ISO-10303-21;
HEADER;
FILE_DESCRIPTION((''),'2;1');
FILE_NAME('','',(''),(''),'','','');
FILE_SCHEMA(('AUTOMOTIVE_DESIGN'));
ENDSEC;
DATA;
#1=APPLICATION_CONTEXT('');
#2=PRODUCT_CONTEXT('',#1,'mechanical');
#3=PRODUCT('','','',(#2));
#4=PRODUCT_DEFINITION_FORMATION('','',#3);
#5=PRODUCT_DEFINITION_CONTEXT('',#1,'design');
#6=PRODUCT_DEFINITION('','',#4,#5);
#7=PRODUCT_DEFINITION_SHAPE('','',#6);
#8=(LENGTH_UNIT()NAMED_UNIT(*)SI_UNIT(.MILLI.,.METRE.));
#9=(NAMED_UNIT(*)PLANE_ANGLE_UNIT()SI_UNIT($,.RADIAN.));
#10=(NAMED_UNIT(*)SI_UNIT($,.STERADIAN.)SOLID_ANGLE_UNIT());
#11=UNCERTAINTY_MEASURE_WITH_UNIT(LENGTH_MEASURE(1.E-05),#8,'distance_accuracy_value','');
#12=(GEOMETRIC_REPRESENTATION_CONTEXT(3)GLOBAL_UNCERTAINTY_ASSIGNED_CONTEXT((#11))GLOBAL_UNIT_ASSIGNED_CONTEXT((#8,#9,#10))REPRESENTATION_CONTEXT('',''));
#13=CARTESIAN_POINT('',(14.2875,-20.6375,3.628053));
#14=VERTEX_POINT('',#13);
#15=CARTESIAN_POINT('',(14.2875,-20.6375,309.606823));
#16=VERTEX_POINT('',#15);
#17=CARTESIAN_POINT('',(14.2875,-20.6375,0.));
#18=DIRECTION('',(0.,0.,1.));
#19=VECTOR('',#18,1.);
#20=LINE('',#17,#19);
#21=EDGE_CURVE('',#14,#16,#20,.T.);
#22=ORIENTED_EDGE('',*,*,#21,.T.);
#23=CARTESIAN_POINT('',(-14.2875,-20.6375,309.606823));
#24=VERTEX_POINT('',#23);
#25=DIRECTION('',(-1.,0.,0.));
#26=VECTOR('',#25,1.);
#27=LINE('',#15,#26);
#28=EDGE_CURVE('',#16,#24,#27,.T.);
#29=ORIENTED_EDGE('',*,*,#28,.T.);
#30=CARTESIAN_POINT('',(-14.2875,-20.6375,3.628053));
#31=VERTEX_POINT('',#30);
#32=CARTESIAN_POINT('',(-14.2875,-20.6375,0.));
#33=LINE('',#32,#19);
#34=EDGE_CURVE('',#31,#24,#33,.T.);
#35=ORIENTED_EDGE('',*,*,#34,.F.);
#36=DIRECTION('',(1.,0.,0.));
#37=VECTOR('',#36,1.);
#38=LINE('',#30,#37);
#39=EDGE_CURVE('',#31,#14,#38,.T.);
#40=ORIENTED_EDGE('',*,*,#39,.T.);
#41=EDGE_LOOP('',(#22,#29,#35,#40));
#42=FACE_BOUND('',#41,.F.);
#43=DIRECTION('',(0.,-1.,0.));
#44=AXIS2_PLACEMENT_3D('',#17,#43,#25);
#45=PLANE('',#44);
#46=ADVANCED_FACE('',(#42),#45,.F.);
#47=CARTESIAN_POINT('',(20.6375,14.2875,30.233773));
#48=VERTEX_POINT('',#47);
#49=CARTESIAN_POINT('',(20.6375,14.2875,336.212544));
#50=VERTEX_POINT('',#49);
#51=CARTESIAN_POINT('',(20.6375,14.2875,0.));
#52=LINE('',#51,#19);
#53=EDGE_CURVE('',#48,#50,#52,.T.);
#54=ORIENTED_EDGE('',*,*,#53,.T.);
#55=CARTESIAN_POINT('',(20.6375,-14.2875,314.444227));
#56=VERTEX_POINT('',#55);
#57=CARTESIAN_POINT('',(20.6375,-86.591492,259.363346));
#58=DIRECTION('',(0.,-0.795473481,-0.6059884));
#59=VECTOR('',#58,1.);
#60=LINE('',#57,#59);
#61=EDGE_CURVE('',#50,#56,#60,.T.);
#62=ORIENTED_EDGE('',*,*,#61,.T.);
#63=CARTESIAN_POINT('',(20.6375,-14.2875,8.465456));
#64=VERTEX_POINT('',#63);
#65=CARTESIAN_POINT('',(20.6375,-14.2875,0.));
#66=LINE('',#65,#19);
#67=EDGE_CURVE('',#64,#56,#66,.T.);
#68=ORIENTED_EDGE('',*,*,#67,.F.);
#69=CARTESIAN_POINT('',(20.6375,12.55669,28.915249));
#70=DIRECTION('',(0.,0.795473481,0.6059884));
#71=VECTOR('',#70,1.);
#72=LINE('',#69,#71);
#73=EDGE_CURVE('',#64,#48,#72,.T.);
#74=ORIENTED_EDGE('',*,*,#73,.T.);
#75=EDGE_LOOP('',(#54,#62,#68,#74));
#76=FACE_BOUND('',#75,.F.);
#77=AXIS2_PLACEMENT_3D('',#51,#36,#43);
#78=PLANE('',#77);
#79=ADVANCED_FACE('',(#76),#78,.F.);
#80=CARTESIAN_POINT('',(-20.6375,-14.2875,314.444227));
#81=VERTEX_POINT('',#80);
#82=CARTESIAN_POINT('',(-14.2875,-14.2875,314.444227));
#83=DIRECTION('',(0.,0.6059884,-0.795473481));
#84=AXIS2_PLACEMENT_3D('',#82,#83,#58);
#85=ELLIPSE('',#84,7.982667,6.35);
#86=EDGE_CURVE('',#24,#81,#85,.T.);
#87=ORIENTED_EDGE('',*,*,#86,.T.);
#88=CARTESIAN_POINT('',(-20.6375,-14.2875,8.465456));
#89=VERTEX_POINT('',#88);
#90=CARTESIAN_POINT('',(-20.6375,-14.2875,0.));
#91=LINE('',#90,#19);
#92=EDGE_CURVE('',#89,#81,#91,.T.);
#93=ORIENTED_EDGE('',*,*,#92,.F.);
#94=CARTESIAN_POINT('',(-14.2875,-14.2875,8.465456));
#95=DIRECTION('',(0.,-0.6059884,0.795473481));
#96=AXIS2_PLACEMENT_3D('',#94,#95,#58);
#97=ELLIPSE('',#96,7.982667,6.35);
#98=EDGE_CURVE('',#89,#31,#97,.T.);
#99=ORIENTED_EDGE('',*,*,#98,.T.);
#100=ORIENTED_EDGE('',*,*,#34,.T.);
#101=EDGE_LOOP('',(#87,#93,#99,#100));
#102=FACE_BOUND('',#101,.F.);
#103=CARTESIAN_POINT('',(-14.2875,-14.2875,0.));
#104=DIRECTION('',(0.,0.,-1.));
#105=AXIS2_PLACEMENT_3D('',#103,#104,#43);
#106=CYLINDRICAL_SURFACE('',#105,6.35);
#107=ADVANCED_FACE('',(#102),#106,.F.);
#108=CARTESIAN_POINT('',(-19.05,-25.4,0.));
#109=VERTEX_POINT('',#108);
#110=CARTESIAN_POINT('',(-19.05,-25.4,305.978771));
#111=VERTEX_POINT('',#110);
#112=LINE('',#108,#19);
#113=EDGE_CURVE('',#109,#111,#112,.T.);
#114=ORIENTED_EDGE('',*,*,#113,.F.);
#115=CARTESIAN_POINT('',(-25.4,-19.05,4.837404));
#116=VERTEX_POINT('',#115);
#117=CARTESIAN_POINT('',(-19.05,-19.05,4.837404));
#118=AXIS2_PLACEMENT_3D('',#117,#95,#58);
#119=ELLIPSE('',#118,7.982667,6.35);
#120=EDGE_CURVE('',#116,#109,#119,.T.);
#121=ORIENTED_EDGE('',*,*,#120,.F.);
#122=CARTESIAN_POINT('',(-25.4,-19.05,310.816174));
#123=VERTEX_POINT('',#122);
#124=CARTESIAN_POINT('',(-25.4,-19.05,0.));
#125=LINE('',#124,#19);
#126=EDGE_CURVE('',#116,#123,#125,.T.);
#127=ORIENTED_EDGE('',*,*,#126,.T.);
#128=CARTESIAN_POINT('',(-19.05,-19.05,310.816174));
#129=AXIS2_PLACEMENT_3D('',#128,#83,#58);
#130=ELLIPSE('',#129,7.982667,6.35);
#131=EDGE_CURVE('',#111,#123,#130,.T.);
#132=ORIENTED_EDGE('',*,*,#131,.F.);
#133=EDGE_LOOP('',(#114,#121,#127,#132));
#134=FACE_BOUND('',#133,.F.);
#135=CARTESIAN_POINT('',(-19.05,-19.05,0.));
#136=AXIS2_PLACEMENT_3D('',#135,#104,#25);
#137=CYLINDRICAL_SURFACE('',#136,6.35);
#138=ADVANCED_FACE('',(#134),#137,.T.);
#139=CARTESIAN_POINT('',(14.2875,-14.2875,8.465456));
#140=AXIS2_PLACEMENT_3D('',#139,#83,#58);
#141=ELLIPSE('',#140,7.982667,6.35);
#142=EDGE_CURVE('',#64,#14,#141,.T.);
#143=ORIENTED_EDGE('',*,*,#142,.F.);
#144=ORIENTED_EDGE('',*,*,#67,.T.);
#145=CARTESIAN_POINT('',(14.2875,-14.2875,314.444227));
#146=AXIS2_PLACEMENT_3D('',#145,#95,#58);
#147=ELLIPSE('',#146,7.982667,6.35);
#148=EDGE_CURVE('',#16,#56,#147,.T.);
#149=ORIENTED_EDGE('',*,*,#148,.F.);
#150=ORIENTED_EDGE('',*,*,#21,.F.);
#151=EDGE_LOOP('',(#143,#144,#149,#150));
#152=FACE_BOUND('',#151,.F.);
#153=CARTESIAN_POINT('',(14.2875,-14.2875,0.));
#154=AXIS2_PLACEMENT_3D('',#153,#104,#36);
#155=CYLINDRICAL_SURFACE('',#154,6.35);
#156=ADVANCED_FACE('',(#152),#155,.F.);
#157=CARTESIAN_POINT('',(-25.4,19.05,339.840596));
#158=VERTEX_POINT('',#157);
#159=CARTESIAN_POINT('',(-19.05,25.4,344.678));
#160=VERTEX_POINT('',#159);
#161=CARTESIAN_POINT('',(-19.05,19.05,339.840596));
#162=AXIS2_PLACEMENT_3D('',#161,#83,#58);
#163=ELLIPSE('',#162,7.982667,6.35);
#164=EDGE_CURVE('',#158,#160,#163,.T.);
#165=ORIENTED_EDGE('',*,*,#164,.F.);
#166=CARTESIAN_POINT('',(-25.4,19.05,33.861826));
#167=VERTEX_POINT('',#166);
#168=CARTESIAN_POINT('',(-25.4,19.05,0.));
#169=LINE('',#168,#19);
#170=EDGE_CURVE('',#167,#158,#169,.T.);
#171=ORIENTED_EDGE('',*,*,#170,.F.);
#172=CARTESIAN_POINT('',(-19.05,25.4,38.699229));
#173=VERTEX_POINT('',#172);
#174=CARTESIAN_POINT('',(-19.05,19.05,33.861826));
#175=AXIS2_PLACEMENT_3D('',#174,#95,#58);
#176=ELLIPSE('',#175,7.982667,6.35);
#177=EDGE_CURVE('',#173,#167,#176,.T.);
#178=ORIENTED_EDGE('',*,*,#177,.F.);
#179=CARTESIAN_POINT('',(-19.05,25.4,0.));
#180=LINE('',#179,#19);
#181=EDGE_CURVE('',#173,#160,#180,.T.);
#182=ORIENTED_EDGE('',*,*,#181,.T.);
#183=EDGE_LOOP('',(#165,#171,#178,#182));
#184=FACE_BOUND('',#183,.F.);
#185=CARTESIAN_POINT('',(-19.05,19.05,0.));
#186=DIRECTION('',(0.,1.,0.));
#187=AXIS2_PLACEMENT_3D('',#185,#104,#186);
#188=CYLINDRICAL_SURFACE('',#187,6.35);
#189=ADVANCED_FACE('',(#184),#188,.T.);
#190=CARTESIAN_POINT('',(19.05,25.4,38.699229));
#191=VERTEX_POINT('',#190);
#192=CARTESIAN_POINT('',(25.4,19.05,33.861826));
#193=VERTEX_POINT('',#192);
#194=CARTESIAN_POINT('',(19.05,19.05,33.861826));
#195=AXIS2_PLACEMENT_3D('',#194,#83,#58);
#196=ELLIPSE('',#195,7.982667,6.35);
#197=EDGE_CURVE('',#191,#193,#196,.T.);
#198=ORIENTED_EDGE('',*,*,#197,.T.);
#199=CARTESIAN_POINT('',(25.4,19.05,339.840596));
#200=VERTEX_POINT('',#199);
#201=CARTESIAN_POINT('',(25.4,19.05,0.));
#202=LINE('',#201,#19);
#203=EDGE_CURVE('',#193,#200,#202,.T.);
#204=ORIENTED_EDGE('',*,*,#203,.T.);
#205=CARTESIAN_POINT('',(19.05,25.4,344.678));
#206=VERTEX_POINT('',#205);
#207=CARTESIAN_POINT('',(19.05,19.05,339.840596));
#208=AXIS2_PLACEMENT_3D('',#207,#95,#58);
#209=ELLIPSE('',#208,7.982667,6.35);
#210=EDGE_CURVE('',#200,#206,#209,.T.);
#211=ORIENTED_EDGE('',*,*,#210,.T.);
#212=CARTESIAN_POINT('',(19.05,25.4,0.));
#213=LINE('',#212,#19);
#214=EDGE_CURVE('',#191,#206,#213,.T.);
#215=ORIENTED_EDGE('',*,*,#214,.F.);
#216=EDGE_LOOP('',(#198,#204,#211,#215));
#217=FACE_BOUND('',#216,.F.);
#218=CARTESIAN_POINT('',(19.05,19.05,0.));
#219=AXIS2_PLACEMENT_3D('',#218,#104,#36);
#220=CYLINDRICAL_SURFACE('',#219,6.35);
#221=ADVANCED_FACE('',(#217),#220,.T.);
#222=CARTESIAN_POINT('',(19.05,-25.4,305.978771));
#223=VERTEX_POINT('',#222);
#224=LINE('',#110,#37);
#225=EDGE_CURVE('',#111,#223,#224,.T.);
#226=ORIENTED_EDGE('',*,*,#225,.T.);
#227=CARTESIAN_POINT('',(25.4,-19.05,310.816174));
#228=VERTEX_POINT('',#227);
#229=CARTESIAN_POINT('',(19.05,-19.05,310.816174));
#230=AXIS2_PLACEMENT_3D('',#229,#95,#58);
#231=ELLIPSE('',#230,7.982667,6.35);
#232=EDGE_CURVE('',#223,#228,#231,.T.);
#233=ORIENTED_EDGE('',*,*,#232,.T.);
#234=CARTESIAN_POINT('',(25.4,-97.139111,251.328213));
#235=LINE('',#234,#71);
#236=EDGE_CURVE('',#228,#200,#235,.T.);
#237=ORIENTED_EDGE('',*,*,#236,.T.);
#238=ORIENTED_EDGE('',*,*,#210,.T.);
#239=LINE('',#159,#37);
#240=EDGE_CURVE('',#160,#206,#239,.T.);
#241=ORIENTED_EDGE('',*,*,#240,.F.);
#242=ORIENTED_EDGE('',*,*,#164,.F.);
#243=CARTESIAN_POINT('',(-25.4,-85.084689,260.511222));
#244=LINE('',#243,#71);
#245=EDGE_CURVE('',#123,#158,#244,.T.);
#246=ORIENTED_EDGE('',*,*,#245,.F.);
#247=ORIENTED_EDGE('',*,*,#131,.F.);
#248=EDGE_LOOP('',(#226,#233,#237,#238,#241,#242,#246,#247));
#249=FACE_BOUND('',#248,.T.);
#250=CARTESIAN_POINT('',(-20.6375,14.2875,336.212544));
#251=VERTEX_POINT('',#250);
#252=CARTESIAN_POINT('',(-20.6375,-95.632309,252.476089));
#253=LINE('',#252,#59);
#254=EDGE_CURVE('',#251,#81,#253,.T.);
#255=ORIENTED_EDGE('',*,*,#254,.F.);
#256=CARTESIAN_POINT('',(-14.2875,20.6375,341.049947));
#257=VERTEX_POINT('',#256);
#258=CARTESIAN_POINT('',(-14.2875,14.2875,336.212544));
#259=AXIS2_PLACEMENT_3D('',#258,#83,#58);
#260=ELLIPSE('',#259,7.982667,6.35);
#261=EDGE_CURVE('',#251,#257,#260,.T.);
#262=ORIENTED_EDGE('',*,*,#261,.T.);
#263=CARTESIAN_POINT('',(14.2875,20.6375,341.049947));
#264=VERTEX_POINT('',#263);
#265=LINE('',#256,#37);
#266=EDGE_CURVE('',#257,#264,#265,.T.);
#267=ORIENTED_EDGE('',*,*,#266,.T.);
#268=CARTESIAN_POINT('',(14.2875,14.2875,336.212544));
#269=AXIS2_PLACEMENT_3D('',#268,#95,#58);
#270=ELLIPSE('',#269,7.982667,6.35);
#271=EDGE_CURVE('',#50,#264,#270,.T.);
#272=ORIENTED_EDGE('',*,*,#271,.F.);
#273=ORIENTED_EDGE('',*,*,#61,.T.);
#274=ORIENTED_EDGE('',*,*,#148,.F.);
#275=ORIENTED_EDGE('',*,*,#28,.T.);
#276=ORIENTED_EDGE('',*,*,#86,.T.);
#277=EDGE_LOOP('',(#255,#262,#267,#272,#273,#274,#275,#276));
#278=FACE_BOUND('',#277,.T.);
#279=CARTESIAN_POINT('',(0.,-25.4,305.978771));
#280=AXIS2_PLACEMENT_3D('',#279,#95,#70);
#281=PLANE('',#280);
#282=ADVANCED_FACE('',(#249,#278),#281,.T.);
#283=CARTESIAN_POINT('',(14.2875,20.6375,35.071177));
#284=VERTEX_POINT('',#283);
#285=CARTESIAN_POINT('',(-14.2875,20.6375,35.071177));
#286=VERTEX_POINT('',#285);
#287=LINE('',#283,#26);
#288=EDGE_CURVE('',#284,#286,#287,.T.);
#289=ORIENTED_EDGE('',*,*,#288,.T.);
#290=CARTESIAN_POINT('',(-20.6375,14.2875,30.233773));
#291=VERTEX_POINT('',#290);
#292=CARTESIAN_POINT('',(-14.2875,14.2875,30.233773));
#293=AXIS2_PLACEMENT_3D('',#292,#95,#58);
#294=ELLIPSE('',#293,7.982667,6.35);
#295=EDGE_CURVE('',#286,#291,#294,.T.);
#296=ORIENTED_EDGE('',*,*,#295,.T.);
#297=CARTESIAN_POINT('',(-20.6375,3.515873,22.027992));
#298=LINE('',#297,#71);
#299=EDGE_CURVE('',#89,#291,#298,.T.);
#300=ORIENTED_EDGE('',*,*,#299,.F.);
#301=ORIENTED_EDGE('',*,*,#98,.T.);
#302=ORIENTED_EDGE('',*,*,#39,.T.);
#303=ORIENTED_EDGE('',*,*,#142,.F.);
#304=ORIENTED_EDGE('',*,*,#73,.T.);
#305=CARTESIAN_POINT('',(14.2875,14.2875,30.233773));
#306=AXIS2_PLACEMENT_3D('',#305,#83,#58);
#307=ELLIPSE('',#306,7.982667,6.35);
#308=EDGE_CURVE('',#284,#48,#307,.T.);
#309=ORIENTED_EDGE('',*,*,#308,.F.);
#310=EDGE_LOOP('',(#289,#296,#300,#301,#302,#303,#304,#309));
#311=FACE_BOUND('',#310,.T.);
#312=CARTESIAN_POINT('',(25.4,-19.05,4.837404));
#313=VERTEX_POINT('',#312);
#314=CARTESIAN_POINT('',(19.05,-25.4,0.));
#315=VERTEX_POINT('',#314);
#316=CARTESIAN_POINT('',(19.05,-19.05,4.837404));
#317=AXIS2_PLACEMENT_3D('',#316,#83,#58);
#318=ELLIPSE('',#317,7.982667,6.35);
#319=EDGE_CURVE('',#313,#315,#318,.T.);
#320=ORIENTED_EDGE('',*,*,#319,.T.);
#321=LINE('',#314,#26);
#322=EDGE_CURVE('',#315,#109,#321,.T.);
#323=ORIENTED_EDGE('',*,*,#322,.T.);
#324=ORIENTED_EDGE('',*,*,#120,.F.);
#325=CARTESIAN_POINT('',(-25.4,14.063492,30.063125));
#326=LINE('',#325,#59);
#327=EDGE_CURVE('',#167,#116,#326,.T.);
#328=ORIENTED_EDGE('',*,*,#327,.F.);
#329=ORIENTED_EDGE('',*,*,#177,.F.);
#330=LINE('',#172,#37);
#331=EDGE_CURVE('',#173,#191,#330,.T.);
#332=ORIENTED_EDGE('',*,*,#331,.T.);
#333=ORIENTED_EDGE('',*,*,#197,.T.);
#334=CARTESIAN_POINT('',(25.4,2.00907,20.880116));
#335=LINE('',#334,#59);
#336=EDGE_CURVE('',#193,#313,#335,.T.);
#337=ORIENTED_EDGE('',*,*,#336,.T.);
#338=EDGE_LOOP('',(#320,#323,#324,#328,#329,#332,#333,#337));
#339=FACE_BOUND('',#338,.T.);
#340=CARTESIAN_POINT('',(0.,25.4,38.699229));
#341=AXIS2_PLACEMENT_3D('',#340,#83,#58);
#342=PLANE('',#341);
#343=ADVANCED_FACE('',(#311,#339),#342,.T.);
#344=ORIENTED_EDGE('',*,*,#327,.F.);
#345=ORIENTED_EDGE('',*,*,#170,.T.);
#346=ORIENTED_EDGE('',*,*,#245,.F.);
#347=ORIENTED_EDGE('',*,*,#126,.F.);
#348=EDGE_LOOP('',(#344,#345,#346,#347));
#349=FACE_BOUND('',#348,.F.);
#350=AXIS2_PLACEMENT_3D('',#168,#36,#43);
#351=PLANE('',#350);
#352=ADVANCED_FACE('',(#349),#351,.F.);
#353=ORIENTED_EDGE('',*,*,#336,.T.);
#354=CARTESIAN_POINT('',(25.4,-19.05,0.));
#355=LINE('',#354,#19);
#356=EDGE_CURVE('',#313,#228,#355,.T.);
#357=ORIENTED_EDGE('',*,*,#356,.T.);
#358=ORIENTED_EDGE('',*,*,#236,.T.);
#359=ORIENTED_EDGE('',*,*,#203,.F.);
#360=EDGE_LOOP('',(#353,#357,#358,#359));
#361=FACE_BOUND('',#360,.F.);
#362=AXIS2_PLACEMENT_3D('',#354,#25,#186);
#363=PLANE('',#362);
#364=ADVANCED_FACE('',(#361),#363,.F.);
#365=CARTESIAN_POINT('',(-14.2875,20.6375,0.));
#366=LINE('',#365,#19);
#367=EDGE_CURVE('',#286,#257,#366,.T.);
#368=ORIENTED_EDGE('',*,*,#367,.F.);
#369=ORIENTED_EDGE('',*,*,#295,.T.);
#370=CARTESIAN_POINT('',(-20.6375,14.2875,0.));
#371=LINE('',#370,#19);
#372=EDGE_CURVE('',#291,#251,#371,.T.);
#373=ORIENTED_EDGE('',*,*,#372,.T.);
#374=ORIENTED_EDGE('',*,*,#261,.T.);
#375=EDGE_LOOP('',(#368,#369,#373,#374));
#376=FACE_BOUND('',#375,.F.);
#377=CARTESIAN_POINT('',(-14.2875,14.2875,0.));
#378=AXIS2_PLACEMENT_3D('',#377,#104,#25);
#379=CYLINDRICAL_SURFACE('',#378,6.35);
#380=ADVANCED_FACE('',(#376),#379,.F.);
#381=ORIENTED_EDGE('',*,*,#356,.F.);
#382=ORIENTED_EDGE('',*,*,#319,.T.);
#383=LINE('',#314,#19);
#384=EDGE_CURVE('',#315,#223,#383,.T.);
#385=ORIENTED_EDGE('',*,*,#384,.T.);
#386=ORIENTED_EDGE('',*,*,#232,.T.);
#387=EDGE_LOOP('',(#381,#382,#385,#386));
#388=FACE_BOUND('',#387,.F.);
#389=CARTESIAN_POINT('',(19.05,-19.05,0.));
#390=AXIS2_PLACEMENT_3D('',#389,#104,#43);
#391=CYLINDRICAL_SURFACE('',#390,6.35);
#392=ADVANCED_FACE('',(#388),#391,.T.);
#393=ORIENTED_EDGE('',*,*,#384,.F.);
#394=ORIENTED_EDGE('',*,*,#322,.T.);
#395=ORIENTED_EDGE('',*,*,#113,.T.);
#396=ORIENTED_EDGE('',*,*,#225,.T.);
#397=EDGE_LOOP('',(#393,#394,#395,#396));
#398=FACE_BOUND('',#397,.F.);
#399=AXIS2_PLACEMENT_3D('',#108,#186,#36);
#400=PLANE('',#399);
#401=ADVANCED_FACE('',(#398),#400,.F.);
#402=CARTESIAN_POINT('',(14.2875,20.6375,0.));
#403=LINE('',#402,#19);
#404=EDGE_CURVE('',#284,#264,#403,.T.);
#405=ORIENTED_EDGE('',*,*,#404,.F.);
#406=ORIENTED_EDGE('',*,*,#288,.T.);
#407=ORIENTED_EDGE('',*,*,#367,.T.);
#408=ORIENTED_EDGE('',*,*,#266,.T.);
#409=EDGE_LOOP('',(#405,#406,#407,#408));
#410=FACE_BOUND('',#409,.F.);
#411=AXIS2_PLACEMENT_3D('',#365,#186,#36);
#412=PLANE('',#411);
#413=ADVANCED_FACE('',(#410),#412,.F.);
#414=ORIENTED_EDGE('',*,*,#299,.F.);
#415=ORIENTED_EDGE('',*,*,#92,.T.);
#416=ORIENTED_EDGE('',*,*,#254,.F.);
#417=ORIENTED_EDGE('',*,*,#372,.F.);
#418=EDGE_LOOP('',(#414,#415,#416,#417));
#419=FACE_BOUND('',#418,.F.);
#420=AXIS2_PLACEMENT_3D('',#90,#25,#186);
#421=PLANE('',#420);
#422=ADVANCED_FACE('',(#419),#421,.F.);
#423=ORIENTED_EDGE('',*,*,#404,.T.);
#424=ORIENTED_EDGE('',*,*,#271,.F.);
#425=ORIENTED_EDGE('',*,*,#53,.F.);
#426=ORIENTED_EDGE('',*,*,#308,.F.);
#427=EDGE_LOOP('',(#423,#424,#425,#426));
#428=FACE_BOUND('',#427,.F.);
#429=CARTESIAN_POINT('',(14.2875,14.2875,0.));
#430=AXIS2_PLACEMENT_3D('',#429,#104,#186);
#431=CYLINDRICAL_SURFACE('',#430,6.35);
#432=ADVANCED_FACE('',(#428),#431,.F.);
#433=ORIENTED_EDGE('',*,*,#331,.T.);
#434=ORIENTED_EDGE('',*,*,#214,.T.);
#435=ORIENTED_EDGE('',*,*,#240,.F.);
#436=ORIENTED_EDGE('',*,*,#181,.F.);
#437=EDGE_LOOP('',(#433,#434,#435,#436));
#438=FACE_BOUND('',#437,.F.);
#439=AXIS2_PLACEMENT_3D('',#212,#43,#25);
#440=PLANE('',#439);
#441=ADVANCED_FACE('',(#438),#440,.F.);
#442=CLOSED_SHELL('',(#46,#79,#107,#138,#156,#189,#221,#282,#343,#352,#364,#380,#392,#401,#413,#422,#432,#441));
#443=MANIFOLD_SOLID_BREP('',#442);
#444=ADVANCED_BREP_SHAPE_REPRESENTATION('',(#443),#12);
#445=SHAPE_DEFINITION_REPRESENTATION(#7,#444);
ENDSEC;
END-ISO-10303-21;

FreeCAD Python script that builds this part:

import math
import FreeCAD as App
import Part
import Sketcher

V = App.Vector
Q = App.Units.Quantity

doc = App.newDocument("Part")
body = doc.addObject("PartDesign::Body", "Body")

sketch1 = body.newObject("Sketcher::SketchObject", "Sketch")
sketch1.AttachmentSupport = (doc.getObject("XY_Plane"), [""])
sketch1.MapMode = "FlatFace"
sketch1.addGeometry([
    Part.ArcOfCircle(Part.Circle(V(19, 19, 0), V(0, 0, 1), 6), math.radians(0), math.radians(90)),
    Part.LineSegment(V(19, 25, 0), V(-19, 25, 0)),
    Part.ArcOfCircle(Part.Circle(V(-19, 19, 0), V(0, 0, 1), 6), math.radians(90), math.radians(180)),
    Part.LineSegment(V(-25, 19, 0), V(-25, -19, 0)),
    Part.ArcOfCircle(Part.Circle(V(-19, -19, 0), V(0, 0, 1), 6), math.radians(180), math.radians(270)),
    Part.LineSegment(V(-19, -25, 0), V(19, -25, 0)),
    Part.ArcOfCircle(Part.Circle(V(19, -19, 0), V(0, 0, 1), 6), math.radians(-90), math.radians(0)),
    Part.LineSegment(V(25, -19, 0), V(25, 19, 0)),
    Part.ArcOfCircle(Part.Circle(V(-14, 14, 0), V(0, 0, 1), 6), math.radians(90), math.radians(180)),
    Part.LineSegment(V(-14, 21, 0), V(14, 21, 0)),
    Part.ArcOfCircle(Part.Circle(V(14, 14, 0), V(0, 0, 1), 6), math.radians(0), math.radians(90)),
    Part.LineSegment(V(21, 14, 0), V(21, -14, 0)),
    Part.ArcOfCircle(Part.Circle(V(14, -14, 0), V(0, 0, 1), 6), math.radians(-90), math.radians(0)),
    Part.LineSegment(V(14, -21, 0), V(-14, -21, 0)),
    Part.ArcOfCircle(Part.Circle(V(-14, -14, 0), V(0, 0, 1), 6), math.radians(180), math.radians(270)),
    Part.LineSegment(V(-21, -14, 0), V(-21, 14, 0)),
], False)
sketch1.addConstraint([
    Sketcher.Constraint("Tangent", 0, 2, 1, 1),
    Sketcher.Constraint("Tangent", 1, 2, 2, 1),
    Sketcher.Constraint("Tangent", 2, 2, 3, 1),
    Sketcher.Constraint("Tangent", 3, 2, 4, 1),
    Sketcher.Constraint("Tangent", 4, 2, 5, 1),
    Sketcher.Constraint("Tangent", 5, 2, 6, 1),
    Sketcher.Constraint("Tangent", 6, 2, 7, 1),
    Sketcher.Constraint("Tangent", 7, 2, 0, 1),
    Sketcher.Constraint("Tangent", 8, 1, 9, 1),
    Sketcher.Constraint("Tangent", 9, 2, 10, 2),
    Sketcher.Constraint("Tangent", 10, 1, 11, 1),
    Sketcher.Constraint("Tangent", 11, 2, 12, 2),
    Sketcher.Constraint("Tangent", 12, 1, 13, 1),
    Sketcher.Constraint("Tangent", 13, 2, 14, 2),
    Sketcher.Constraint("Tangent", 14, 1, 15, 1),
    Sketcher.Constraint("Tangent", 15, 2, 8, 2),
    Sketcher.Constraint("Horizontal", 1),
    Sketcher.Constraint("Vertical", 3),
    Sketcher.Constraint("Horizontal", 5),
    Sketcher.Constraint("Vertical", 7),
    Sketcher.Constraint("Horizontal", 9),
    Sketcher.Constraint("Vertical", 11),
    Sketcher.Constraint("Horizontal", 13),
    Sketcher.Constraint("Vertical", 15),
    Sketcher.Constraint("Equal", 0, 2),
    Sketcher.Constraint("Equal", 2, 4),
    Sketcher.Constraint("Equal", 4, 6),
    Sketcher.Constraint("Equal", 6, 8),
    Sketcher.Constraint("Equal", 8, 10),
    Sketcher.Constraint("Equal", 10, 12),
    Sketcher.Constraint("Equal", 12, 14),
    Sketcher.Constraint("Symmetric", 0, 3, 4, 3, -1, 1),
    Sketcher.Constraint("Symmetric", 8, 3, 12, 3, -1, 1),
    Sketcher.Constraint("Equal", 5, 3),
    Sketcher.Constraint("Equal", 13, 11),
    Sketcher.Constraint("Radius", 0, Q("0.25 in")),
    Sketcher.Constraint("DistanceX", 1, 2, 1, 1, Q("1.5 in")),
    Sketcher.Constraint("DistanceX", 9, 1, 9, 2, Q("1.125 in")),
])
pad1 = body.newObject("PartDesign::Pad", "Pad")
pad1.Profile = sketch1
pad1.Length = Q("13.57 in")

sketch2 = body.newObject("Sketcher::SketchObject", "Sketch001")
sketch2.AttachmentSupport = (doc.getObject("YZ_Plane"), [""])
sketch2.MapMode = "FlatFace"
sketch2.addGeometry([
    Part.LineSegment(V(-25, 0, 0), V(25, 0, 0)),
    Part.LineSegment(V(25, 0, 0), V(25, 39, 0)),
    Part.LineSegment(V(25, 39, 0), V(-25, 0, 0)),
    Part.LineSegment(V(-25, 306, 0), V(25, 345, 0)),
    Part.LineSegment(V(25, 345, 0), V(-25, 345, 0)),
    Part.LineSegment(V(-25, 345, 0), V(-25, 306, 0)),
], False)
sketch2.addConstraint([
    Sketcher.Constraint("Coincident", 0, 2, 1, 1),
    Sketcher.Constraint("Coincident", 1, 2, 2, 1),
    Sketcher.Constraint("Coincident", 2, 2, 0, 1),
    Sketcher.Constraint("Coincident", 3, 2, 4, 1),
    Sketcher.Constraint("Coincident", 4, 2, 5, 1),
    Sketcher.Constraint("Coincident", 5, 2, 3, 1),
    Sketcher.Constraint("Horizontal", 0),
    Sketcher.Constraint("Vertical", 1),
    Sketcher.Constraint("Horizontal", 4),
    Sketcher.Constraint("Vertical", 5),
    Sketcher.Constraint("Symmetric", 0, 2, 2, 2, -1, 1),
    Sketcher.Constraint("Parallel", 2, 3),
    Sketcher.Constraint("Vertical", 1, 2, 3, 2),
    Sketcher.Constraint("Vertical", 2, 2, 4, 2),
    Sketcher.Constraint("DistanceX", 0, 1, 0, 2, Q("2 in")),
    Sketcher.Constraint("Angle", 2, Q("-142.7 deg")),
    Sketcher.Constraint("DistanceY", -1, 1, 3, 2, Q("13.57 in")),
])
pocket1 = body.newObject("PartDesign::Pocket", "Pocket")
pocket1.Profile = sketch2
pocket1.Type = "ThroughAll"
pocket1.Midplane = True

doc.recompute()
